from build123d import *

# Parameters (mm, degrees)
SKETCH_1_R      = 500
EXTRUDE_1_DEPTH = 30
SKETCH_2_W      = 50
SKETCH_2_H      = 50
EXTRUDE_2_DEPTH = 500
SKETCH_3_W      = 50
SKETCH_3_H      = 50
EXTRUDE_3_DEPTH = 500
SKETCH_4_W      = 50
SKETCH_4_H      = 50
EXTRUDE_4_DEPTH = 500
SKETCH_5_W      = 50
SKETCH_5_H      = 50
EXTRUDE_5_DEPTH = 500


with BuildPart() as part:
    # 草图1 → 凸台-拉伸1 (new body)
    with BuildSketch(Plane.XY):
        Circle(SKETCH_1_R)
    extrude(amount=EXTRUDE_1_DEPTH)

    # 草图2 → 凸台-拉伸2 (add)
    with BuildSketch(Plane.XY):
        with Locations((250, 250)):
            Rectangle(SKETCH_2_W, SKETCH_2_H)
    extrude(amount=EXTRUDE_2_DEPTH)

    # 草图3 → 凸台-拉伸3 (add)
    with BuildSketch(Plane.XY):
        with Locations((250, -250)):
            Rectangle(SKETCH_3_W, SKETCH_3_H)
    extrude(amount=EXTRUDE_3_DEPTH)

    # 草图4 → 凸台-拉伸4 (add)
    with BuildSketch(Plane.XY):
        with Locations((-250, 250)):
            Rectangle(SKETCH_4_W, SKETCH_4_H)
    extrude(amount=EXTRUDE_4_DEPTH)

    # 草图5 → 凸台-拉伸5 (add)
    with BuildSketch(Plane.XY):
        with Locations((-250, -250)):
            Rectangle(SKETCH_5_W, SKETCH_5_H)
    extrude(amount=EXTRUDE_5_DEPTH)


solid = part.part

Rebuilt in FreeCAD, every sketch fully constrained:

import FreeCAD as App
import Part
import Sketcher

V = App.Vector


def add_polygon(sketch, points):
    """Adds a closed chain of lines whose ends are joined by coincident constraints."""
    first, n = sketch.GeometryCount, len(points)
    for a, b in zip(points, points[1:] + points[:1]):
        sketch.addGeometry(Part.LineSegment(App.Vector(*a, 0), App.Vector(*b, 0)), False)
    for i in range(n):
        sketch.addConstraint(Sketcher.Constraint("Coincident", first + i, 2, first + (i + 1) % n, 1))

doc = App.newDocument("Part")
body = doc.addObject("PartDesign::Body", "Body")

sketch1 = body.newObject("Sketcher::SketchObject", "Sketch")
sketch1.AttachmentSupport = (doc.getObject("XY_Plane"), [""])
sketch1.MapMode = "FlatFace"
sketch1.addGeometry(Part.Circle(V(0, 0, 0), V(0, 0, 1), 500), False)
sketch1.addConstraint([
    Sketcher.Constraint("Coincident", 0, 3, -1, 1),
    Sketcher.Constraint("Diameter", 0, 1000.0),
])
pad1 = body.newObject("PartDesign::Pad", "Pad")
pad1.Profile = sketch1
pad1.Length = 30

sketch2 = body.newObject("Sketcher::SketchObject", "Sketch001")
sketch2.AttachmentSupport = (doc.getObject("XY_Plane"), [""])
sketch2.MapMode = "FlatFace"
add_polygon(sketch2, [(225, 275), (225, 225), (275, 225), (275, 275)])
sketch2.addConstraint([
    Sketcher.Constraint("Vertical", 0),
    Sketcher.Constraint("Horizontal", 1),
    Sketcher.Constraint("Vertical", 2),
    Sketcher.Constraint("Horizontal", 3),
    Sketcher.Constraint("Equal", 3, 0),
    Sketcher.Constraint("DistanceX", 1, 1, 1, 2, 50.0),
    Sketcher.Constraint("DistanceX", -1, 1, 0, 2, 225.0),
    Sketcher.Constraint("DistanceY", -1, 1, 0, 2, 225.0),
])
pad2 = body.newObject("PartDesign::Pad", "Pad001")
pad2.Profile = sketch2
pad2.Length = 500

sketch3 = body.newObject("Sketcher::SketchObject", "Sketch002")
sketch3.AttachmentSupport = (doc.getObject("XY_Plane"), [""])
sketch3.MapMode = "FlatFace"
add_polygon(sketch3, [(225, -225), (225, -275), (275, -275), (275, -225)])
sketch3.addConstraint([
    Sketcher.Constraint("Vertical", 0),
    Sketcher.Constraint("Horizontal", 1),
    Sketcher.Constraint("Vertical", 2),
    Sketcher.Constraint("Horizontal", 3),
    Sketcher.Constraint("Equal", 3, 0),
    Sketcher.Constraint("DistanceX", 1, 1, 1, 2, 50.0),
    Sketcher.Constraint("DistanceX", -1, 1, 0, 2, 225.0),
    Sketcher.Constraint("DistanceY", 0, 2, -1, 1, 275.0),
])
pad3 = body.newObject("PartDesign::Pad", "Pad002")
pad3.Profile = sketch3
pad3.Length = 500

sketch4 = body.newObject("Sketcher::SketchObject", "Sketch003")
sketch4.AttachmentSupport = (doc.getObject("XY_Plane"), [""])
sketch4.MapMode = "FlatFace"
add_polygon(sketch4, [(-275, 275), (-275, 225), (-225, 225), (-225, 275)])
sketch4.addConstraint([
    Sketcher.Constraint("Vertical", 0),
    Sketcher.Constraint("Horizontal", 1),
    Sketcher.Constraint("Vertical", 2),
    Sketcher.Constraint("Horizontal", 3),
    Sketcher.Constraint("Equal", 3, 0),
    Sketcher.Constraint("DistanceX", 1, 1, 1, 2, 50.0),
    Sketcher.Constraint("DistanceX", 0, 2, -1, 1, 275.0),
    Sketcher.Constraint("DistanceY", -1, 1, 0, 2, 225.0),
])
pad4 = body.newObject("PartDesign::Pad", "Pad003")
pad4.Profile = sketch4
pad4.Length = 500

sketch5 = body.newObject("Sketcher::SketchObject", "Sketch004")
sketch5.AttachmentSupport = (doc.getObject("XY_Plane"), [""])
sketch5.MapMode = "FlatFace"
add_polygon(sketch5, [(-275, -225), (-275, -275), (-225, -275), (-225, -225)])
sketch5.addConstraint([
    Sketcher.Constraint("Vertical", 0),
    Sketcher.Constraint("Horizontal", 1),
    Sketcher.Constraint("Vertical", 2),
    Sketcher.Constraint("Horizontal", 3),
    Sketcher.Constraint("Equal", 3, 0),
    Sketcher.Constraint("DistanceX", 1, 1, 1, 2, 50.0),
    Sketcher.Constraint("DistanceX", 0, 2, -1, 1, 275.0),
    Sketcher.Constraint("DistanceY", 0, 2, -1, 1, 275.0),
])
pad5 = body.newObject("PartDesign::Pad", "Pad004")
pad5.Profile = sketch5
pad5.Length = 500

doc.recompute()
